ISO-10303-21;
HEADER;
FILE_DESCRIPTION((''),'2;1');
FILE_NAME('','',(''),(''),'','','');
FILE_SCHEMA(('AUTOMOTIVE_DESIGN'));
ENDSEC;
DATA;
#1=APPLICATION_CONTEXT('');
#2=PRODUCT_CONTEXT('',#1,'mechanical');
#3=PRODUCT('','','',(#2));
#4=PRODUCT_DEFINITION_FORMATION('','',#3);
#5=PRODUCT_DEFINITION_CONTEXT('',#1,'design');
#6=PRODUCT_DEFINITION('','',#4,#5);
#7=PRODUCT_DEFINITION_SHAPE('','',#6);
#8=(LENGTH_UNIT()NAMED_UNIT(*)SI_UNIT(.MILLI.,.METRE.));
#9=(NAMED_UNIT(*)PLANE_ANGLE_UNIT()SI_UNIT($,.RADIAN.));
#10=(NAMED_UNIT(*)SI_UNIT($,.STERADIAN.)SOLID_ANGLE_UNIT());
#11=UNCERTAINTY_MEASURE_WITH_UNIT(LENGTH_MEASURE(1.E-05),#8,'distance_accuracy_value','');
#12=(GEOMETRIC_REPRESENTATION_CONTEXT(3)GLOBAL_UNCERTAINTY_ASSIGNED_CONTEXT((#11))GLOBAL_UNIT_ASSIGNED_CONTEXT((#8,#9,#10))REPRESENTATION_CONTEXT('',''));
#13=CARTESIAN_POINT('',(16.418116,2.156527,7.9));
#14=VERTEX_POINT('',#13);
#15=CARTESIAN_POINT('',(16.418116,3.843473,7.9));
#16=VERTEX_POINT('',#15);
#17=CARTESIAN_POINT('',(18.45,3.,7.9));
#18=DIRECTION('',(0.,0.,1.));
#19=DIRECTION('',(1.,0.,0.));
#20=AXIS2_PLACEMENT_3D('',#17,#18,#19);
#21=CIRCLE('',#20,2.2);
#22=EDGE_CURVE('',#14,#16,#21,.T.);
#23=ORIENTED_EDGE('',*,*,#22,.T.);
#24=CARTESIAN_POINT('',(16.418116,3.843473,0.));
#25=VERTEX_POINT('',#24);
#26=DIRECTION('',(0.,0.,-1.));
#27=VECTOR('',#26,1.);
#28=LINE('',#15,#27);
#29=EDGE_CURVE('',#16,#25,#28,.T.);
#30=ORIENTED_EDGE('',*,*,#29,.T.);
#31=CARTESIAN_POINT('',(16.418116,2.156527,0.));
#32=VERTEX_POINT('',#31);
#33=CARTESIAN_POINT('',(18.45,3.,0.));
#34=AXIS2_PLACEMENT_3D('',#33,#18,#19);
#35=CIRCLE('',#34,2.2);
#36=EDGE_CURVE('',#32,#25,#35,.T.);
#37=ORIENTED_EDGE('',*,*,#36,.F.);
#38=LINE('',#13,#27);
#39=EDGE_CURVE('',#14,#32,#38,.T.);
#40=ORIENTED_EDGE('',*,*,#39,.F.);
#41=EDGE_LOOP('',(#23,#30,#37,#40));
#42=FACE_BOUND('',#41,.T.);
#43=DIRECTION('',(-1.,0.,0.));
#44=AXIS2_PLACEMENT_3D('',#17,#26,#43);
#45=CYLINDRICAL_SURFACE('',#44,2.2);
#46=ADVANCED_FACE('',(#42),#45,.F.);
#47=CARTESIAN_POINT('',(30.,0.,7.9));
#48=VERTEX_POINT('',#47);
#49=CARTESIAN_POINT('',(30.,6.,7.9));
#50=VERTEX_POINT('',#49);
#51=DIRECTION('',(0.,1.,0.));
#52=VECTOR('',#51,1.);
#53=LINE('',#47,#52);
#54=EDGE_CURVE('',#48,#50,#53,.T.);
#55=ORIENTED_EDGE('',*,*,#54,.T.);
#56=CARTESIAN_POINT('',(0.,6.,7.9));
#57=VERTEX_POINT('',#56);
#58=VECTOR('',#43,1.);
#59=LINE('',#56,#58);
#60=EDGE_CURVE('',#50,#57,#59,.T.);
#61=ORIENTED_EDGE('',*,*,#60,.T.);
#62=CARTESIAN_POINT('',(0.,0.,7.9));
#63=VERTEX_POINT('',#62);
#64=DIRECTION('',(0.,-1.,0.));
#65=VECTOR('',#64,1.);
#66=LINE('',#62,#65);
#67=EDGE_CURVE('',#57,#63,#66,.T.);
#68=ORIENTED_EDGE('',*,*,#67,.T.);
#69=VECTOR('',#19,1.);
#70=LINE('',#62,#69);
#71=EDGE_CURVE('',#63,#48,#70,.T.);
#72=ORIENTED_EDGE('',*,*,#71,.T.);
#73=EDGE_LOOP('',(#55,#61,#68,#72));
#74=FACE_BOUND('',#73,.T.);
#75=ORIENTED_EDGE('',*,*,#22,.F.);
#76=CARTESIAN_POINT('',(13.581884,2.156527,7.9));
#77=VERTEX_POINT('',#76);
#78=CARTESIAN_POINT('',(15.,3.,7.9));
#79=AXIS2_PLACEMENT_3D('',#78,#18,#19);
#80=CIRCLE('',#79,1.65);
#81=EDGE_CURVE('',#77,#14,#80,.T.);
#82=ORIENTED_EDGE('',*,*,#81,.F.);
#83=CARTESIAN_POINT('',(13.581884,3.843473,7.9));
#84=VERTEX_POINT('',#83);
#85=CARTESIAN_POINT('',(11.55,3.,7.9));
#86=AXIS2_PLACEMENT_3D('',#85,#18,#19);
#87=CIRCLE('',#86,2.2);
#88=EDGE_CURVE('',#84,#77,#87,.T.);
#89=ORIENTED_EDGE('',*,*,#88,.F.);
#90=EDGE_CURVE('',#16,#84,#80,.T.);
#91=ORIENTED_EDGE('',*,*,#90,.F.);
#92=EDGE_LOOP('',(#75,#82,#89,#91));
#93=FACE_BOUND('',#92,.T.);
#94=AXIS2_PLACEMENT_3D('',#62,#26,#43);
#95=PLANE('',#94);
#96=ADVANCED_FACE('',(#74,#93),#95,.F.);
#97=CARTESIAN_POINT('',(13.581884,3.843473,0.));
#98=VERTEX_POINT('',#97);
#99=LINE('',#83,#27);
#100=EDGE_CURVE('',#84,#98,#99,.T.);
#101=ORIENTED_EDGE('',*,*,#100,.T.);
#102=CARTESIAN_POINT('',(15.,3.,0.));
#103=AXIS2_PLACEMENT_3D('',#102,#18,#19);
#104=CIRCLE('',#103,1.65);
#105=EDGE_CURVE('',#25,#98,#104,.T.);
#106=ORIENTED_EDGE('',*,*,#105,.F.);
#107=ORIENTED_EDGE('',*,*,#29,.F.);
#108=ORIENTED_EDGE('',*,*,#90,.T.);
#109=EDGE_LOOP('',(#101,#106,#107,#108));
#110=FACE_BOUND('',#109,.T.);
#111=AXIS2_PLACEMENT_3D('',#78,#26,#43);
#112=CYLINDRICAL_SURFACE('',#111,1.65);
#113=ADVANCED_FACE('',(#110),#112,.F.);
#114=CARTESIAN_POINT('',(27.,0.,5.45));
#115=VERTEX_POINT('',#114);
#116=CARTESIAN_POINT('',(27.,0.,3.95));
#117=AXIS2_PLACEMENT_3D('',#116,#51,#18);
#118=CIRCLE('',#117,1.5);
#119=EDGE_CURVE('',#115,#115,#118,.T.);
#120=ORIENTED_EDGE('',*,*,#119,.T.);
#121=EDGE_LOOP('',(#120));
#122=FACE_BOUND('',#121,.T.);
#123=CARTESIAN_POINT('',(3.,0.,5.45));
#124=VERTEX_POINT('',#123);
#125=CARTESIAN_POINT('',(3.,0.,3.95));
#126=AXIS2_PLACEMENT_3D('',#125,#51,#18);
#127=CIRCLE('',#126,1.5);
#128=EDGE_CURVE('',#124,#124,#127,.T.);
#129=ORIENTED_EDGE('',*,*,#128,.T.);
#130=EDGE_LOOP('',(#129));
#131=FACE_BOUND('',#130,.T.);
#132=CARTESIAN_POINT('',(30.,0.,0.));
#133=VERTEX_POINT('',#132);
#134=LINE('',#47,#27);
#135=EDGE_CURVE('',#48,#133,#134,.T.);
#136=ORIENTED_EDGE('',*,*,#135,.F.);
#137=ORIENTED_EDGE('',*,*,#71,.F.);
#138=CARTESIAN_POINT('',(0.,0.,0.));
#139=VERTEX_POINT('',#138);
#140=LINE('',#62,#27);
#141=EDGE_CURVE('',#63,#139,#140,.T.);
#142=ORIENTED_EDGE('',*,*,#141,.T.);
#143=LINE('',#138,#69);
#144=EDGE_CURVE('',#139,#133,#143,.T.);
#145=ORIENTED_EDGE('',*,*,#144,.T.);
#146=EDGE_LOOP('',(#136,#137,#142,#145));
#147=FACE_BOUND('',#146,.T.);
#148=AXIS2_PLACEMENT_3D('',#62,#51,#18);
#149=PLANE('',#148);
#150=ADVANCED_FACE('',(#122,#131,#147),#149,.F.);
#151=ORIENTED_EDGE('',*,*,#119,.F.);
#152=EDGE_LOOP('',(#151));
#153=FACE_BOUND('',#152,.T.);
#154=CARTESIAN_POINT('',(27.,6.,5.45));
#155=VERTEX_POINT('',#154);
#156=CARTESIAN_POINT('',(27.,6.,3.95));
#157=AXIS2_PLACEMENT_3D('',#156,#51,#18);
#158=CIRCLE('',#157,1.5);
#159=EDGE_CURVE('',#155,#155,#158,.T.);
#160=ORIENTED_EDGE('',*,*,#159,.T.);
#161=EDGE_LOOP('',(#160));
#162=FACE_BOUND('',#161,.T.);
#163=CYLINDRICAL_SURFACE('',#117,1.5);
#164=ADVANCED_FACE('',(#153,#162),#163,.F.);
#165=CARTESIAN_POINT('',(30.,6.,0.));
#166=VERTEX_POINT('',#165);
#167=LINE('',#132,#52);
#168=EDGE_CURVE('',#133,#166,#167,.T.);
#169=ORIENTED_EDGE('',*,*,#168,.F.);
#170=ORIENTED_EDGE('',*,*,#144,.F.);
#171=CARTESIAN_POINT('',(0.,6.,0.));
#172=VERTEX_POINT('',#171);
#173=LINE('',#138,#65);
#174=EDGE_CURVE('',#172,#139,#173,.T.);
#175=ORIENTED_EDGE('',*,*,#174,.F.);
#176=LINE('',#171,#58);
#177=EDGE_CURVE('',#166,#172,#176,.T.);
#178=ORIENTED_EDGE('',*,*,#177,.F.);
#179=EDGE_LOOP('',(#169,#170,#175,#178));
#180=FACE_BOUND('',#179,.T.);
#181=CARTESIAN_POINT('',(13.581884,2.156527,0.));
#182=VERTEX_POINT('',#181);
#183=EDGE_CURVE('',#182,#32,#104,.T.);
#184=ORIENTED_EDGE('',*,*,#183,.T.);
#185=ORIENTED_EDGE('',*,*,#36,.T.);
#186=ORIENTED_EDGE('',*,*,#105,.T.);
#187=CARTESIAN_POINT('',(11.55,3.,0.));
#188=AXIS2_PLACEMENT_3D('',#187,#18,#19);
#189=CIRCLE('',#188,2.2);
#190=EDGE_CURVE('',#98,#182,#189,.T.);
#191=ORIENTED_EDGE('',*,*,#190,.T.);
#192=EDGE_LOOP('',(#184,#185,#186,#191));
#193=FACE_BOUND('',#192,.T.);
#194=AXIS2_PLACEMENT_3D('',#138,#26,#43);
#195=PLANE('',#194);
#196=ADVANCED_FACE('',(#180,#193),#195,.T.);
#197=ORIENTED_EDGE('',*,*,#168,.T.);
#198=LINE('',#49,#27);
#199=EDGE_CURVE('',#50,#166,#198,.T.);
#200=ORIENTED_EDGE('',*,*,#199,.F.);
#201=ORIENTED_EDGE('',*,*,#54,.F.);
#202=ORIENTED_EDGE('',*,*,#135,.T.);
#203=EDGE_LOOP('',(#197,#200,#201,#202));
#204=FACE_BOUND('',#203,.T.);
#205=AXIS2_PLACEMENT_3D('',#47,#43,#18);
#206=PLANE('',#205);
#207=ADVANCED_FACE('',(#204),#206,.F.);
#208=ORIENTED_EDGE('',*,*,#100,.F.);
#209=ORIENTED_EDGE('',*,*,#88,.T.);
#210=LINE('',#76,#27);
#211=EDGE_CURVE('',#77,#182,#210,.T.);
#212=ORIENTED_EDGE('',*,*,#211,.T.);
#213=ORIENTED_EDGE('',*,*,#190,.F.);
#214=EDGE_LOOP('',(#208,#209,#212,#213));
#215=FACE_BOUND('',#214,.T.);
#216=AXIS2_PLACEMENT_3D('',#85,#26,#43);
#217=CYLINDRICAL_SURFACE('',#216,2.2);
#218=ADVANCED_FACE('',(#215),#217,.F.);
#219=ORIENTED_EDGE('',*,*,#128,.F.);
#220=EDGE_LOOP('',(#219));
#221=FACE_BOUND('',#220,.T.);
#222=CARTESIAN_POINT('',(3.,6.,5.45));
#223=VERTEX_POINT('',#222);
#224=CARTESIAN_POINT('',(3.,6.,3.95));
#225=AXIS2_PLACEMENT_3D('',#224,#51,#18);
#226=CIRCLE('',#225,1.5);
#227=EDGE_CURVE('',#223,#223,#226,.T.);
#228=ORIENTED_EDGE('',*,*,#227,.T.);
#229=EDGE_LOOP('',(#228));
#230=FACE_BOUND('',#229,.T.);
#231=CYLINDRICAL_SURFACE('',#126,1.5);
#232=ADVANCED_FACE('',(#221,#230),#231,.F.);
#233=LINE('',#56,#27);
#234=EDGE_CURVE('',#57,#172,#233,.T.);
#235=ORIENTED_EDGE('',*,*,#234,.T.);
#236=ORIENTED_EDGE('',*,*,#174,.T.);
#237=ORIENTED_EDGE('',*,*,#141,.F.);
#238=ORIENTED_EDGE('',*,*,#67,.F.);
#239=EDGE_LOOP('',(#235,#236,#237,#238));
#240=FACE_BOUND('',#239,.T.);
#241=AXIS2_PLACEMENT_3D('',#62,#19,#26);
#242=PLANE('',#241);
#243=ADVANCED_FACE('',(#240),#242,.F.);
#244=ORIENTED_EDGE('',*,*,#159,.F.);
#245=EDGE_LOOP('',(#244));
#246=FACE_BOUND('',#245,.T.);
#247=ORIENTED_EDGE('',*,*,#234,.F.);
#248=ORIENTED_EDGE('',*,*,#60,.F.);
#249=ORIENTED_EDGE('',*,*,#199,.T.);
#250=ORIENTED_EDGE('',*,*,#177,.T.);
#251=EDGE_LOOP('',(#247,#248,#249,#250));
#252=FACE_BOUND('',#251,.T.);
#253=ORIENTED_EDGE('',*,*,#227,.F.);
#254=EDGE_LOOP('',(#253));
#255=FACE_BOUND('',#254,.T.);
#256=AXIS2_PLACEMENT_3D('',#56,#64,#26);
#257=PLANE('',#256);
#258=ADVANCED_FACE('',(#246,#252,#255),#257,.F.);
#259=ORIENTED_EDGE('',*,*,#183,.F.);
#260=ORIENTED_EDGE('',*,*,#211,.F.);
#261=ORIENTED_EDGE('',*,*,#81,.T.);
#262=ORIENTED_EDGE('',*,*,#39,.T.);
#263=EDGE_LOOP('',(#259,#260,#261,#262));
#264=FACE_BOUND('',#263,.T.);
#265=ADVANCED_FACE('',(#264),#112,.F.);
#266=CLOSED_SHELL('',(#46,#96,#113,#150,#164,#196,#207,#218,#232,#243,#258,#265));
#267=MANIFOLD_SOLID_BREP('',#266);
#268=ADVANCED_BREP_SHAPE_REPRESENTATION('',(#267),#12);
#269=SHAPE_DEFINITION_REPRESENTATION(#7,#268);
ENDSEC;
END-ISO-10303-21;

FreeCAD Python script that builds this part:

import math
import FreeCAD as App
import Part
import Sketcher

V = App.Vector


def add_polygon(sketch, points):
    """Adds a closed chain of lines whose ends are joined by coincident constraints."""
    first, n = sketch.GeometryCount, len(points)
    for a, b in zip(points, points[1:] + points[:1]):
        sketch.addGeometry(Part.LineSegment(App.Vector(*a, 0), App.Vector(*b, 0)), False)
    for i in range(n):
        sketch.addConstraint(Sketcher.Constraint("Coincident", first + i, 2, first + (i + 1) % n, 1))

doc = App.newDocument("Part")
params = doc.addObject("Spreadsheet::Sheet", "Params")
for row, (alias, value) in enumerate([
    ("sketch1_radius", "2.2 mm"),
    ("sketch1_width", "30 mm"),
    ("sketch1_height", "6 mm"),
    ("sketch1_radius2", "1.65 mm"),
    ("pad1_length", "7.9 mm"),
    ("sketch2_diameter", "3 mm"),
], start=1):
    params.set(f"A{row}", alias)
    params.set(f"B{row}", "=" + value)
    params.setAlias(f"B{row}", alias)

body = doc.addObject("PartDesign::Body", "Body")

sketch1 = doc.addObject("Sketcher::SketchObject", "Sketch")
body.addObject(sketch1)
sketch1.AttachmentSupport = (doc.XY_Plane, [""])
sketch1.MapMode = "FlatFace"
add_polygon(sketch1, [(0, 6), (0, 0), (30, 0), (30, 6)])
sketch1.addGeometry(Part.ArcOfCircle(Part.Circle(V(11.6, 3, 0), V(0, 0, 1), 2.2), math.radians(23), math.radians(337)), False)
sketch1.addGeometry(Part.ArcOfCircle(Part.Circle(V(15, 3, 0), V(0, 0, 1), 1.6), math.radians(31), math.radians(149)), False)
sketch1.addGeometry(Part.ArcOfCircle(Part.Circle(V(18.4, 3, 0), V(0, 0, 1), 2.2), math.radians(-157), math.radians(157)), False)
sketch1.addGeometry(Part.ArcOfCircle(Part.Circle(V(15, 3, 0), V(0, 0, 1), 1.6), math.radians(-149), math.radians(-31)), False)
sketch1.addConstraint([
    Sketcher.Constraint("Coincident", 4, 1, 5, 2),
    Sketcher.Constraint("Coincident", 5, 1, 6, 2),
    Sketcher.Constraint("Coincident", 6, 1, 7, 2),
    Sketcher.Constraint("Coincident", 7, 1, 4, 2),
    Sketcher.Constraint("Vertical", 0),
    Sketcher.Constraint("Horizontal", 1),
    Sketcher.Constraint("Vertical", 2),
    Sketcher.Constraint("Horizontal", 3),
    Sketcher.Constraint("Coincident", 0, 2, -1, 1),
    Sketcher.Constraint("Coincident", 7, 3, 5, 3),
    Sketcher.Constraint("Equal", 4, 6),
    Sketcher.Constraint("Equal", 5, 7),
    Sketcher.Constraint("Horizontal", 4, 3, 5, 3),
    Sketcher.Constraint("Horizontal", 5, 3, 6, 3),
    Sketcher.Constraint("Horizontal", 4, 1, 5, 1),
    Sketcher.Constraint("Radius", 4, 2.2),
    Sketcher.Constraint("DistanceX", 1, 1, 1, 2, 30.0),
    Sketcher.Constraint("DistanceY", 0, 2, 0, 1, 6.0),
    Sketcher.Constraint("Radius", 5, 1.65),
    Sketcher.Constraint("DistanceY", -1, 1, 4, 3, 3.0),
    Sketcher.Constraint("DistanceX", -1, 1, 5, 3, 15.0),
    Sketcher.Constraint("DistanceX", 4, 3, 6, 3, 6.9),
])
sketch1.setExpression("Constraints[19]", "Params.sketch1_radius")
sketch1.setExpression("Constraints[20]", "Params.sketch1_width")
sketch1.setExpression("Constraints[21]", "Params.sketch1_height")
sketch1.setExpression("Constraints[22]", "Params.sketch1_radius2")
pad1 = doc.addObject("PartDesign::Pad", "Pad")
body.addObject(pad1)
pad1.Profile = sketch1
pad1.setExpression("Length", "Params.pad1_length")

sketch2 = doc.addObject("Sketcher::SketchObject", "Sketch001")
body.addObject(sketch2)
sketch2.AttachmentSupport = (doc.XZ_Plane, [""])
sketch2.MapMode = "FlatFace"
sketch2.AttachmentOffset = App.Placement(V(0, 0, -6), App.Rotation())
sketch2.addGeometry([
    Part.Circle(V(3, 4, 0), V(0, 0, 1), 1.5),
    Part.Circle(V(27, 4, 0), V(0, 0, 1), 1.5),
], False)
sketch2.addConstraint([
    Sketcher.Constraint("Equal", 0, 1),
    Sketcher.Constraint("Horizontal", 0, 3, 1, 3),
    Sketcher.Constraint("Diameter", 0, 3.0),
    Sketcher.Constraint("DistanceX", -1, 1, 0, 3, 3.0),
    Sketcher.Constraint("DistanceX", -1, 1, 1, 3, 27.0),
    Sketcher.Constraint("DistanceY", -1, 1, 0, 3, 3.95),
])
sketch2.setExpression("Constraints[2]", "Params.sketch2_diameter")
pocket1 = doc.addObject("PartDesign::Pocket", "Pocket")
body.addObject(pocket1)
pocket1.Profile = sketch2
pocket1.Type = "ThroughAll"
pocket1.Reversed = True

doc.recompute()
